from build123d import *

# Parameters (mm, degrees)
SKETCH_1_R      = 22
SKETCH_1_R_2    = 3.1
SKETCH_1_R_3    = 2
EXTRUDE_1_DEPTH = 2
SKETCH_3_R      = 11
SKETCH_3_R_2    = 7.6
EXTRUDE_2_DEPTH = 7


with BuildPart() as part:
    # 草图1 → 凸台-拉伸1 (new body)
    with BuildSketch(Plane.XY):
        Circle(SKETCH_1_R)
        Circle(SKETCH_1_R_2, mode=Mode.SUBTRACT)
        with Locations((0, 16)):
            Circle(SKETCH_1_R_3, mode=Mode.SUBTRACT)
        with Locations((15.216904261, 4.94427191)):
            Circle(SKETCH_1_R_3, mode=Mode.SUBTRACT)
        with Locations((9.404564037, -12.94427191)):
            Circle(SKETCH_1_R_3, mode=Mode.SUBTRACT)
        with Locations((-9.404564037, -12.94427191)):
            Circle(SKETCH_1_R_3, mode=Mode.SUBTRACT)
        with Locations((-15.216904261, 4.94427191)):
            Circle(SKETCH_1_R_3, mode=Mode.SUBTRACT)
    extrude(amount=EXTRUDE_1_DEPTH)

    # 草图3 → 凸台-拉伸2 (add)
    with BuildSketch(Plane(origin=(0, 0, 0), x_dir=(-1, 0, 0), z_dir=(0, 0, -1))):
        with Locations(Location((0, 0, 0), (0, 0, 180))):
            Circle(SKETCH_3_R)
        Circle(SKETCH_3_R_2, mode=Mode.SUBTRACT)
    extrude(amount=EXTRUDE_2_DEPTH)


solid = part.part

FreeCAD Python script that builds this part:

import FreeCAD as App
import Part
import Sketcher
Q = App.Units.Quantity

doc = App.newDocument("Part")
body = doc.addObject("PartDesign::Body", "Body")

sketch1 = body.newObject("Sketcher::SketchObject", "Sketch")
sketch1.AttachmentSupport = (doc.getObject("XY_Plane"), [""])
sketch1.MapMode = "FlatFace"
sketch1.addGeometry(Part.Circle(App.Vector(0, 0, 0), App.Vector(0, 0, 1), 22), False)
sketch1.addGeometry(Part.Circle(App.Vector(-9.4, -12.9, 0), App.Vector(0, 0, 1), 2), False)
sketch1.addGeometry(Part.Circle(App.Vector(0, 0, 0), App.Vector(0, 0, 1), 3.1), False)
sketch1.addGeometry(Part.Circle(App.Vector(9.4, -12.9, 0), App.Vector(0, 0, 1), 2), False)
sketch1.addGeometry(Part.Circle(App.Vector(-15.2, 4.9, 0), App.Vector(0, 0, 1), 2), False)
sketch1.addGeometry(Part.Circle(App.Vector(0, 16, 0), App.Vector(0, 0, 1), 2), False)
sketch1.addGeometry(Part.Circle(App.Vector(15.2, 4.9, 0), App.Vector(0, 0, 1), 2), False)
sketch1.addConstraint(Sketcher.Constraint("Coincident", 0, 3, -1, 1))
sketch1.addConstraint(Sketcher.Constraint("Coincident", 2, 3, -1, 1))
sketch1.addConstraint(Sketcher.Constraint("Equal", 1, 3))
sketch1.addConstraint(Sketcher.Constraint("Equal", 3, 4))
sketch1.addConstraint(Sketcher.Constraint("Equal", 4, 5))
sketch1.addConstraint(Sketcher.Constraint("Equal", 5, 6))
sketch1.addConstraint(Sketcher.Constraint("Symmetric", 1, 3, 3, 3, -2))
sketch1.addConstraint(Sketcher.Constraint("Symmetric", 4, 3, 6, 3, -2))
sketch1.addConstraint(Sketcher.Constraint("PointOnObject", 5, 3, -2))
sketch1.addConstraint(Sketcher.Constraint("Diameter", 0, Q("44 mm")))
sketch1.addConstraint(Sketcher.Constraint("Diameter", 1, Q("4 mm")))
sketch1.addConstraint(Sketcher.Constraint("Diameter", 2, Q("6.2 mm")))
sketch1.addConstraint(Sketcher.Constraint("DistanceY", -1, 1, 5, 3, Q("16 mm")))
sketch1.addConstraint(Sketcher.Constraint("DistanceY", 1, 3, -1, 1, Q("12.944272 mm")))
sketch1.addConstraint(Sketcher.Constraint("DistanceY", -1, 1, 4, 3, Q("4.944272 mm")))
sketch1.addConstraint(Sketcher.Constraint("DistanceX", 1, 3, 3, 3, Q("18.809128 mm")))
sketch1.addConstraint(Sketcher.Constraint("DistanceX", 4, 3, 1, 3, Q("5.81234 mm")))
pad1 = body.newObject("PartDesign::Pad", "Pad")
pad1.Profile = sketch1
pad1.Length = 2

sketch2 = body.newObject("Sketcher::SketchObject", "Sketch001")
sketch2.AttachmentSupport = (doc.getObject("XY_Plane"), [""])
sketch2.MapMode = "FlatFace"
sketch2.addGeometry(Part.Circle(App.Vector(0, 0, 0), App.Vector(0, 0, 1), 11), False)
sketch2.addGeometry(Part.Circle(App.Vector(0, 0, 0), App.Vector(0, 0, 1), 8), False)
sketch2.addConstraint(Sketcher.Constraint("Coincident", 0, 3, -1, 1))
sketch2.addConstraint(Sketcher.Constraint("Coincident", 1, 3, -1, 1))
sketch2.addConstraint(Sketcher.Constraint("Diameter", 0, Q("22 mm")))
sketch2.addConstraint(Sketcher.Constraint("Diameter", 1, Q("15.2 mm")))
pad2 = body.newObject("PartDesign::Pad", "Pad001")
pad2.Profile = sketch2
pad2.Length = 7
pad2.Reversed = True

doc.recompute()
